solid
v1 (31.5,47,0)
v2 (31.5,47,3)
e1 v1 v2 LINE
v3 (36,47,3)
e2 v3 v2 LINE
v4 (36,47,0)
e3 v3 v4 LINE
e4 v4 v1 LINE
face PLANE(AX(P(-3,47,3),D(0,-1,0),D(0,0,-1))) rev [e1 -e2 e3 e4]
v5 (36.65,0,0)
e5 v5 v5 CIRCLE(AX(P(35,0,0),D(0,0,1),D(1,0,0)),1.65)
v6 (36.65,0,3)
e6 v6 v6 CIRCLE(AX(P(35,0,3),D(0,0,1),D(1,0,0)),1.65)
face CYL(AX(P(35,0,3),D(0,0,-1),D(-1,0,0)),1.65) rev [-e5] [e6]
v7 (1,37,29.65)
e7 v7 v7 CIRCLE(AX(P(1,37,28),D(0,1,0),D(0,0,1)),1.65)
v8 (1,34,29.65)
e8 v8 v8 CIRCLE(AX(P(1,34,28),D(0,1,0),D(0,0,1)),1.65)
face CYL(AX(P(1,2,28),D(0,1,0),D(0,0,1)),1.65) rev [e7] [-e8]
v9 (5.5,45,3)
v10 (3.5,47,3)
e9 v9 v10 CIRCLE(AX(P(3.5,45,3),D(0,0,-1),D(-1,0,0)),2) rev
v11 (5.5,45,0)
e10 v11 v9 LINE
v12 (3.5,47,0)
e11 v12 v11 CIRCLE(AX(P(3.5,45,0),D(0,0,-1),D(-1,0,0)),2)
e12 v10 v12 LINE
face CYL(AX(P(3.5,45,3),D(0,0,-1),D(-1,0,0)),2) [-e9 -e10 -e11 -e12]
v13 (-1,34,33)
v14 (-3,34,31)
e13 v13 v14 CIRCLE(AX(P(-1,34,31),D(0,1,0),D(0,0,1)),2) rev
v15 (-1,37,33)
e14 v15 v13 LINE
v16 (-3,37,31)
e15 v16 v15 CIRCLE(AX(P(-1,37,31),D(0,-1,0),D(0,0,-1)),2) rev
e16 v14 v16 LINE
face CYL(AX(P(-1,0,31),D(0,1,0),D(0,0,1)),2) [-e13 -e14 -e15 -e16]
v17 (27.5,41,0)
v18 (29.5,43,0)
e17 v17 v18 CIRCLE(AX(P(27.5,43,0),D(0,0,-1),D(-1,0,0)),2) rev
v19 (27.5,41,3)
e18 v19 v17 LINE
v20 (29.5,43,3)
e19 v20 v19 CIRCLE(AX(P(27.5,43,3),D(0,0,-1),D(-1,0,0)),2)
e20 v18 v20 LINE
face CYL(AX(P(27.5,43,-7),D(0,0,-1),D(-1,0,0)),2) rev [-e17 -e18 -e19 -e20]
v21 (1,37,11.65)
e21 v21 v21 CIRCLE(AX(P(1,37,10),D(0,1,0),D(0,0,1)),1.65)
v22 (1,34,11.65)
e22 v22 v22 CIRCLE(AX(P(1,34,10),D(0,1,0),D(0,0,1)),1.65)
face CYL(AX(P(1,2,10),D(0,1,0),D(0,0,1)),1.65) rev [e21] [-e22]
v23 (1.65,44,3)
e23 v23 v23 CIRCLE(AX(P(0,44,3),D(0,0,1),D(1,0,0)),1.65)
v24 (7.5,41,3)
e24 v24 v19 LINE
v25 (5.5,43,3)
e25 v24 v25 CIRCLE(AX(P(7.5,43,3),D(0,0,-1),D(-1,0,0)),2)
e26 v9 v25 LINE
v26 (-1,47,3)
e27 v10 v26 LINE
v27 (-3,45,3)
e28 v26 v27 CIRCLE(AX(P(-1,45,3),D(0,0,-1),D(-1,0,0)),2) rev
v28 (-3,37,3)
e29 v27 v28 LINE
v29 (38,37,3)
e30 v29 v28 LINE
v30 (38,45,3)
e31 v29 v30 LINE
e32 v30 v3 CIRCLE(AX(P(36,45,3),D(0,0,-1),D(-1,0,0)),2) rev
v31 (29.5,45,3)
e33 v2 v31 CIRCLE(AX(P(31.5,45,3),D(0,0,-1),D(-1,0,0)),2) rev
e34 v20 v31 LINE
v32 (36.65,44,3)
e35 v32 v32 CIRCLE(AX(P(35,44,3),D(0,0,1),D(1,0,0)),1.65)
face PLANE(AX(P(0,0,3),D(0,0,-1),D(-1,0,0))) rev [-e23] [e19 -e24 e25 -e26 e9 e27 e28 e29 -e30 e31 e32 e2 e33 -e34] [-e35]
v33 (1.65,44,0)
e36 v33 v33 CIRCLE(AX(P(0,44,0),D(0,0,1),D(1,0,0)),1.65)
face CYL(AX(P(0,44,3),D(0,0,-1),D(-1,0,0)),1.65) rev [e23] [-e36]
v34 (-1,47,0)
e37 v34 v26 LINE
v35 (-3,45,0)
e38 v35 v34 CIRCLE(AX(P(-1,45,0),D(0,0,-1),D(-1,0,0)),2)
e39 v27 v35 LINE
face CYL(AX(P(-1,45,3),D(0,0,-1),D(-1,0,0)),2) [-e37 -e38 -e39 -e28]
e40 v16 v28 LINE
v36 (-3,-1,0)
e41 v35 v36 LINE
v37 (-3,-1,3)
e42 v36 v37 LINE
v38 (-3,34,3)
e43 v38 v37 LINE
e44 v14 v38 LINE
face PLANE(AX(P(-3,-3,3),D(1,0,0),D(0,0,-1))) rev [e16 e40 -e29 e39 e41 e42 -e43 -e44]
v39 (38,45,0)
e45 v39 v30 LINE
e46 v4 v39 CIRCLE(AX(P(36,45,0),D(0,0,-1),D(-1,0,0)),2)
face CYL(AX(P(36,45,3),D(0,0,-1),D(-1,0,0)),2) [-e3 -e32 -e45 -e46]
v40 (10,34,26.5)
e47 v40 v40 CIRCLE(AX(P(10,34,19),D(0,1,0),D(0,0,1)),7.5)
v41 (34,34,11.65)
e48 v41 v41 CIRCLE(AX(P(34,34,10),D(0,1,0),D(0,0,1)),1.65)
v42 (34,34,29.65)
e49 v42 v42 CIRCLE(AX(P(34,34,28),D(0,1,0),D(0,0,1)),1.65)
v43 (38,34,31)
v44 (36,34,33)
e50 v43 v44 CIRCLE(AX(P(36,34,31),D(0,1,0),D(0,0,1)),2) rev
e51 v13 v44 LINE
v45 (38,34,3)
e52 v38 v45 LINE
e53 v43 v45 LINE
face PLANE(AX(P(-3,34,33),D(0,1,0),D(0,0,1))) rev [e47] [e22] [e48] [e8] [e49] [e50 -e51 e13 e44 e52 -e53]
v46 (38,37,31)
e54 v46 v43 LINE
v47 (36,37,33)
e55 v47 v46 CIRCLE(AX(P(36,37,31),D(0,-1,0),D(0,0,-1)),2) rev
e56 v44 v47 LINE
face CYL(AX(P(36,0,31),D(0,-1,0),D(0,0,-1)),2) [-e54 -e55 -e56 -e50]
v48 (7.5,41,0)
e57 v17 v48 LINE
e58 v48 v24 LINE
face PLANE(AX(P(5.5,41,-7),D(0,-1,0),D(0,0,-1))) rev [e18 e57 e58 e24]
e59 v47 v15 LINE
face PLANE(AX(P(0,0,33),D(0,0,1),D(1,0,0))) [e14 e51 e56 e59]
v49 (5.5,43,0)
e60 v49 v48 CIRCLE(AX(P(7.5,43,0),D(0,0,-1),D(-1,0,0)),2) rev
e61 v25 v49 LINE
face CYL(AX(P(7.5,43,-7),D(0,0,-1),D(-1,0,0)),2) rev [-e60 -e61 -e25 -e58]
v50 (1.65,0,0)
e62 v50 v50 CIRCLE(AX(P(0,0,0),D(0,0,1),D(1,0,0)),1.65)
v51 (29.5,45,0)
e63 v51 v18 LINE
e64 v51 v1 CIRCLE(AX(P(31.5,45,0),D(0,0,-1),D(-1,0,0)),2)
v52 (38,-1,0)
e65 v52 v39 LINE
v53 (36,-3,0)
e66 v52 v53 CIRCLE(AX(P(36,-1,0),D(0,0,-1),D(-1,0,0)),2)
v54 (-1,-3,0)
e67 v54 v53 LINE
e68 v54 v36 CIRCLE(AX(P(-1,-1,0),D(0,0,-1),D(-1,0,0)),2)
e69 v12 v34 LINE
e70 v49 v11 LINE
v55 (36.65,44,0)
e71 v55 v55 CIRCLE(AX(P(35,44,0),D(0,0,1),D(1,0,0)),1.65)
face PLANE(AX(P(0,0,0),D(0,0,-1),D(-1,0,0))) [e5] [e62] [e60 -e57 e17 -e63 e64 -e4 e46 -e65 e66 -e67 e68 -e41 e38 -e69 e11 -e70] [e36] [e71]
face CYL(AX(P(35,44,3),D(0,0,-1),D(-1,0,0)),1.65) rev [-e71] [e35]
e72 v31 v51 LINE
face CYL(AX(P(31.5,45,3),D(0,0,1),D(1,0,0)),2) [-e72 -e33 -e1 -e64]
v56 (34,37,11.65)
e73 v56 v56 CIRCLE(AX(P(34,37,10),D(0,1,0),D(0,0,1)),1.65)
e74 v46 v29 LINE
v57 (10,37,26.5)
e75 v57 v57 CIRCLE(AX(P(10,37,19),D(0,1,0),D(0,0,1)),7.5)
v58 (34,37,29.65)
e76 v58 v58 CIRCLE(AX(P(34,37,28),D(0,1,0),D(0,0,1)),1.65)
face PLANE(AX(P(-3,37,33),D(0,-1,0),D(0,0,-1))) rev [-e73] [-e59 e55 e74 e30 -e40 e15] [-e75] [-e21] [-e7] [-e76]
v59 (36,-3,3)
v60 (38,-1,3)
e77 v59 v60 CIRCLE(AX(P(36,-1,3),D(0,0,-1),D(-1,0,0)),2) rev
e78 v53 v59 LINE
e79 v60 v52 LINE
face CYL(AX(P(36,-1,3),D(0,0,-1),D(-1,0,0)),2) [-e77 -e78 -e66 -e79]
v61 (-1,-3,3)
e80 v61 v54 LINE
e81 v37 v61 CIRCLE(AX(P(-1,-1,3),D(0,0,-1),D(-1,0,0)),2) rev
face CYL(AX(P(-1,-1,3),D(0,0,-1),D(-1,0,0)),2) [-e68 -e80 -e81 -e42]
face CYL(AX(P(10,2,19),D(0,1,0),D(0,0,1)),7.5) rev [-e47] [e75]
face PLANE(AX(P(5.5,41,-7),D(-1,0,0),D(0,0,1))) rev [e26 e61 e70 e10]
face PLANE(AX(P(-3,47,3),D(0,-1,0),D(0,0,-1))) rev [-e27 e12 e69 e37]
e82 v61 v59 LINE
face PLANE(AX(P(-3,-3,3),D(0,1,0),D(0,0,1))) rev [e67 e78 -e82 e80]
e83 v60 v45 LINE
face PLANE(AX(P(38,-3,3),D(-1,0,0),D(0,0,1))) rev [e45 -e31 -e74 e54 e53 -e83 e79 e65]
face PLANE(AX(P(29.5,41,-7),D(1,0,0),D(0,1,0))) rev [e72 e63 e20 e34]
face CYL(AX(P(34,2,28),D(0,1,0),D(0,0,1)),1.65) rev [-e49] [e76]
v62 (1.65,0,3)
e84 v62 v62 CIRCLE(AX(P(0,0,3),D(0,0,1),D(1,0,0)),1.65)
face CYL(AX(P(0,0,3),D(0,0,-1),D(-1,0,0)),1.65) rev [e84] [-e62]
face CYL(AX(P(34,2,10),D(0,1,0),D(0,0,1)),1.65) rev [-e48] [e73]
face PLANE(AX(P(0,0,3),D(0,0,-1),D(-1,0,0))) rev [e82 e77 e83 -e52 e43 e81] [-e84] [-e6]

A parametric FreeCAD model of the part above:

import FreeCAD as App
import Part
import Sketcher


def edges_at(feature, points):
    """Names of the edges that pass closest to the given points."""
    edges = feature.Shape.Edges
    near = lambda p: min(range(len(edges)), key=lambda i: edges[i].distToShape(Part.Vertex(*p))[0])
    return sorted({f"Edge{near(p) + 1}" for p in points})


def add_polygon(sketch, points):
    """Adds a closed chain of lines whose ends are joined by coincident constraints."""
    first, n = sketch.GeometryCount, len(points)
    for a, b in zip(points, points[1:] + points[:1]):
        sketch.addGeometry(Part.LineSegment(App.Vector(*a, 0), App.Vector(*b, 0)), False)
    for i in range(n):
        sketch.addConstraint(Sketcher.Constraint("Coincident", first + i, 2, first + (i + 1) % n, 1))

doc = App.newDocument("Part")
body = doc.addObject("PartDesign::Body", "Body")

# Sketch on XY plane
sketch1 = doc.addObject("Sketcher::SketchObject", "Sketch")
body.addObject(sketch1)
sketch1.AttachmentSupport = (doc.XY_Plane, [""])
sketch1.MapMode = "FlatFace"
add_polygon(sketch1, [(-3, 47), (-3, -3), (38, -3), (38, 47)])  # lines 0-3
sketch1.addGeometry(Part.Circle(App.Vector(0, 0, 0), App.Vector(0, 0, 1), 1.6), False)  # 4
sketch1.addGeometry(Part.Circle(App.Vector(35, 0, 0), App.Vector(0, 0, 1), 1.6), False)  # 5
sketch1.addGeometry(Part.Circle(App.Vector(0, 44, 0), App.Vector(0, 0, 1), 1.6), False)  # 6
sketch1.addGeometry(Part.Circle(App.Vector(35, 44, 0), App.Vector(0, 0, 1), 1.6), False)  # 7
sketch1.addConstraint(Sketcher.Constraint("Vertical", 0))
sketch1.addConstraint(Sketcher.Constraint("Horizontal", 1))
sketch1.addConstraint(Sketcher.Constraint("Vertical", 2))
sketch1.addConstraint(Sketcher.Constraint("Horizontal", 3))
sketch1.addConstraint(Sketcher.Constraint("Coincident", 4, 3, -1, 1))
sketch1.addConstraint(Sketcher.Constraint("Equal", 4, 5))
sketch1.addConstraint(Sketcher.Constraint("Equal", 5, 6))
sketch1.addConstraint(Sketcher.Constraint("Equal", 6, 7))
sketch1.addConstraint(Sketcher.Constraint("PointOnObject", 5, 3, -1))
sketch1.addConstraint(Sketcher.Constraint("PointOnObject", 6, 3, -2))
sketch1.addConstraint(Sketcher.Constraint("Horizontal", 6, 3, 7, 3))
sketch1.addConstraint(Sketcher.Constraint("Vertical", 5, 3, 7, 3))
sketch1.addConstraint(Sketcher.Constraint("Diameter", 4, 3.3))
sketch1.addConstraint(Sketcher.Constraint("DistanceX", 1, 1, 1, 2, 41.0))
sketch1.addConstraint(Sketcher.Constraint("DistanceY", 0, 2, 0, 1, 50.0))
sketch1.addConstraint(Sketcher.Constraint("DistanceX", -1, 1, 5, 3, 35.0))
sketch1.addConstraint(Sketcher.Constraint("DistanceY", -1, 1, 6, 3, 44.0))
sketch1.addConstraint(Sketcher.Constraint("DistanceX", 0, 2, -1, 1, 3.0))
sketch1.addConstraint(Sketcher.Constraint("DistanceY", 0, 2, -1, 1, 3.0))
pad1 = doc.addObject("PartDesign::Pad", "Pad")
body.addObject(pad1)
pad1.Profile = sketch1
pad1.Length = 3

# Sketch on XY plane
sketch2 = doc.addObject("Sketcher::SketchObject", "Sketch001")
body.addObject(sketch2)
sketch2.AttachmentSupport = (doc.XY_Plane, [""])
sketch2.MapMode = "FlatFace"
sketch2.AttachmentOffset = App.Placement(App.Vector(0, 0, 3), App.Rotation())
add_polygon(sketch2, [(-3, 37), (-3, 34), (38, 34), (38, 37)])  # lines 0-3
sketch2.addConstraint(Sketcher.Constraint("Vertical", 0))
sketch2.addConstraint(Sketcher.Constraint("Horizontal", 1))
sketch2.addConstraint(Sketcher.Constraint("Vertical", 2))
sketch2.addConstraint(Sketcher.Constraint("Horizontal", 3))
sketch2.addConstraint(Sketcher.Constraint("DistanceX", 1, 1, 1, 2, 41.0))
sketch2.addConstraint(Sketcher.Constraint("DistanceY", 0, 2, 0, 1, 3.0))
sketch2.addConstraint(Sketcher.Constraint("DistanceX", 0, 2, -1, 1, 3.0))
sketch2.addConstraint(Sketcher.Constraint("DistanceY", -1, 1, 0, 2, 34.0))
pad2 = doc.addObject("PartDesign::Pad", "Pad001")
body.addObject(pad2)
pad2.Profile = sketch2
pad2.Length = 30

# Sketch on XZ plane
sketch3 = doc.addObject("Sketcher::SketchObject", "Sketch002")
body.addObject(sketch3)
sketch3.AttachmentSupport = (doc.XZ_Plane, [""])
sketch3.MapMode = "FlatFace"
sketch3.AttachmentOffset = App.Placement(App.Vector(0, 0, -37), App.Rotation())
sketch3.addGeometry(Part.Circle(App.Vector(34, 28, 0), App.Vector(0, 0, 1), 1.6), False)
sketch3.addGeometry(Part.Circle(App.Vector(34, 10, 0), App.Vector(0, 0, 1), 1.6), False)
sketch3.addGeometry(Part.Circle(App.Vector(1, 10, 0), App.Vector(0, 0, 1), 1.6), False)
sketch3.addGeometry(Part.Circle(App.Vector(1, 28, 0), App.Vector(0, 0, 1), 1.6), False)
sketch3.addGeometry(Part.Circle(App.Vector(10, 19, 0), App.Vector(0, 0, 1), 7.5), False)
sketch3.addConstraint(Sketcher.Constraint("Equal", 0, 1))
sketch3.addConstraint(Sketcher.Constraint("Equal", 1, 2))
sketch3.addConstraint(Sketcher.Constraint("Equal", 2, 3))
sketch3.addConstraint(Sketcher.Constraint("Horizontal", 1, 3, 2, 3))
sketch3.addConstraint(Sketcher.Constraint("Horizontal", 0, 3, 3, 3))
sketch3.addConstraint(Sketcher.Constraint("Vertical", 0, 3, 1, 3))
sketch3.addConstraint(Sketcher.Constraint("Vertical", 2, 3, 3, 3))
sketch3.addConstraint(Sketcher.Constraint("Diameter", 4, 15.0))
sketch3.addConstraint(Sketcher.Constraint("Diameter", 0, 3.3))
sketch3.addConstraint(Sketcher.Constraint("DistanceX", -1, 1, 0, 3, 34.0))
sketch3.addConstraint(Sketcher.Constraint("DistanceY", -1, 1, 0, 3, 28.0))
sketch3.addConstraint(Sketcher.Constraint("DistanceY", -1, 1, 1, 3, 10.0))
sketch3.addConstraint(Sketcher.Constraint("DistanceX", -1, 1, 2, 3, 1.0))
sketch3.addConstraint(Sketcher.Constraint("DistanceX", -1, 1, 4, 3, 10.0))
sketch3.addConstraint(Sketcher.Constraint("DistanceY", -1, 1, 4, 3, 19.0))
pocket1 = doc.addObject("PartDesign::Pocket", "Pocket")
body.addObject(pocket1)
pocket1.Profile = sketch3
pocket1.Length = 35
pocket1.Reversed = True

# Sketch on XY plane
sketch4 = doc.addObject("Sketcher::SketchObject", "Sketch003")
body.addObject(sketch4)
sketch4.AttachmentSupport = (doc.XY_Plane, [""])
sketch4.MapMode = "FlatFace"
sketch4.AttachmentOffset = App.Placement(App.Vector(0, 0, 3), App.Rotation())
add_polygon(sketch4, [(6, 47), (6, 41), (30, 41), (30, 47)])  # lines 0-3
sketch4.addConstraint(Sketcher.Constraint("Vertical", 0))
sketch4.addConstraint(Sketcher.Constraint("Horizontal", 1))
sketch4.addConstraint(Sketcher.Constraint("Vertical", 2))
sketch4.addConstraint(Sketcher.Constraint("Horizontal", 3))
sketch4.addConstraint(Sketcher.Constraint("DistanceX", 1, 1, 1, 2, 24.0))
sketch4.addConstraint(Sketcher.Constraint("DistanceY", 0, 2, 0, 1, 6.0))
sketch4.addConstraint(Sketcher.Constraint("DistanceY", -1, 1, 0, 2, 41.0))
sketch4.addConstraint(Sketcher.Constraint("DistanceX", -1, 1, 0, 2, 5.5))
pocket2 = doc.addObject("PartDesign::Pocket", "Pocket001")
body.addObject(pocket2)
pocket2.Profile = sketch4
pocket2.Length = 10
doc.recompute()

fillet = doc.addObject("PartDesign::Fillet", "Fillet")
body.addObject(fillet)
fillet.Base = (pocket2, edges_at(pocket2, [
    (-3, 35.5, 33),
    (38, 35.5, 33),
    (5.5, 47, 1.5),
    (29.5, 47, 1.5),
    (-3, 47, 1.5),
    (38, 47, 1.5),
    (29.5, 41, 1.5),
    (5.5, 41, 1.5),
    (38, -3, 1.5),
    (-3, -3, 1.5),
]))
fillet.Radius = 2

doc.recompute()
